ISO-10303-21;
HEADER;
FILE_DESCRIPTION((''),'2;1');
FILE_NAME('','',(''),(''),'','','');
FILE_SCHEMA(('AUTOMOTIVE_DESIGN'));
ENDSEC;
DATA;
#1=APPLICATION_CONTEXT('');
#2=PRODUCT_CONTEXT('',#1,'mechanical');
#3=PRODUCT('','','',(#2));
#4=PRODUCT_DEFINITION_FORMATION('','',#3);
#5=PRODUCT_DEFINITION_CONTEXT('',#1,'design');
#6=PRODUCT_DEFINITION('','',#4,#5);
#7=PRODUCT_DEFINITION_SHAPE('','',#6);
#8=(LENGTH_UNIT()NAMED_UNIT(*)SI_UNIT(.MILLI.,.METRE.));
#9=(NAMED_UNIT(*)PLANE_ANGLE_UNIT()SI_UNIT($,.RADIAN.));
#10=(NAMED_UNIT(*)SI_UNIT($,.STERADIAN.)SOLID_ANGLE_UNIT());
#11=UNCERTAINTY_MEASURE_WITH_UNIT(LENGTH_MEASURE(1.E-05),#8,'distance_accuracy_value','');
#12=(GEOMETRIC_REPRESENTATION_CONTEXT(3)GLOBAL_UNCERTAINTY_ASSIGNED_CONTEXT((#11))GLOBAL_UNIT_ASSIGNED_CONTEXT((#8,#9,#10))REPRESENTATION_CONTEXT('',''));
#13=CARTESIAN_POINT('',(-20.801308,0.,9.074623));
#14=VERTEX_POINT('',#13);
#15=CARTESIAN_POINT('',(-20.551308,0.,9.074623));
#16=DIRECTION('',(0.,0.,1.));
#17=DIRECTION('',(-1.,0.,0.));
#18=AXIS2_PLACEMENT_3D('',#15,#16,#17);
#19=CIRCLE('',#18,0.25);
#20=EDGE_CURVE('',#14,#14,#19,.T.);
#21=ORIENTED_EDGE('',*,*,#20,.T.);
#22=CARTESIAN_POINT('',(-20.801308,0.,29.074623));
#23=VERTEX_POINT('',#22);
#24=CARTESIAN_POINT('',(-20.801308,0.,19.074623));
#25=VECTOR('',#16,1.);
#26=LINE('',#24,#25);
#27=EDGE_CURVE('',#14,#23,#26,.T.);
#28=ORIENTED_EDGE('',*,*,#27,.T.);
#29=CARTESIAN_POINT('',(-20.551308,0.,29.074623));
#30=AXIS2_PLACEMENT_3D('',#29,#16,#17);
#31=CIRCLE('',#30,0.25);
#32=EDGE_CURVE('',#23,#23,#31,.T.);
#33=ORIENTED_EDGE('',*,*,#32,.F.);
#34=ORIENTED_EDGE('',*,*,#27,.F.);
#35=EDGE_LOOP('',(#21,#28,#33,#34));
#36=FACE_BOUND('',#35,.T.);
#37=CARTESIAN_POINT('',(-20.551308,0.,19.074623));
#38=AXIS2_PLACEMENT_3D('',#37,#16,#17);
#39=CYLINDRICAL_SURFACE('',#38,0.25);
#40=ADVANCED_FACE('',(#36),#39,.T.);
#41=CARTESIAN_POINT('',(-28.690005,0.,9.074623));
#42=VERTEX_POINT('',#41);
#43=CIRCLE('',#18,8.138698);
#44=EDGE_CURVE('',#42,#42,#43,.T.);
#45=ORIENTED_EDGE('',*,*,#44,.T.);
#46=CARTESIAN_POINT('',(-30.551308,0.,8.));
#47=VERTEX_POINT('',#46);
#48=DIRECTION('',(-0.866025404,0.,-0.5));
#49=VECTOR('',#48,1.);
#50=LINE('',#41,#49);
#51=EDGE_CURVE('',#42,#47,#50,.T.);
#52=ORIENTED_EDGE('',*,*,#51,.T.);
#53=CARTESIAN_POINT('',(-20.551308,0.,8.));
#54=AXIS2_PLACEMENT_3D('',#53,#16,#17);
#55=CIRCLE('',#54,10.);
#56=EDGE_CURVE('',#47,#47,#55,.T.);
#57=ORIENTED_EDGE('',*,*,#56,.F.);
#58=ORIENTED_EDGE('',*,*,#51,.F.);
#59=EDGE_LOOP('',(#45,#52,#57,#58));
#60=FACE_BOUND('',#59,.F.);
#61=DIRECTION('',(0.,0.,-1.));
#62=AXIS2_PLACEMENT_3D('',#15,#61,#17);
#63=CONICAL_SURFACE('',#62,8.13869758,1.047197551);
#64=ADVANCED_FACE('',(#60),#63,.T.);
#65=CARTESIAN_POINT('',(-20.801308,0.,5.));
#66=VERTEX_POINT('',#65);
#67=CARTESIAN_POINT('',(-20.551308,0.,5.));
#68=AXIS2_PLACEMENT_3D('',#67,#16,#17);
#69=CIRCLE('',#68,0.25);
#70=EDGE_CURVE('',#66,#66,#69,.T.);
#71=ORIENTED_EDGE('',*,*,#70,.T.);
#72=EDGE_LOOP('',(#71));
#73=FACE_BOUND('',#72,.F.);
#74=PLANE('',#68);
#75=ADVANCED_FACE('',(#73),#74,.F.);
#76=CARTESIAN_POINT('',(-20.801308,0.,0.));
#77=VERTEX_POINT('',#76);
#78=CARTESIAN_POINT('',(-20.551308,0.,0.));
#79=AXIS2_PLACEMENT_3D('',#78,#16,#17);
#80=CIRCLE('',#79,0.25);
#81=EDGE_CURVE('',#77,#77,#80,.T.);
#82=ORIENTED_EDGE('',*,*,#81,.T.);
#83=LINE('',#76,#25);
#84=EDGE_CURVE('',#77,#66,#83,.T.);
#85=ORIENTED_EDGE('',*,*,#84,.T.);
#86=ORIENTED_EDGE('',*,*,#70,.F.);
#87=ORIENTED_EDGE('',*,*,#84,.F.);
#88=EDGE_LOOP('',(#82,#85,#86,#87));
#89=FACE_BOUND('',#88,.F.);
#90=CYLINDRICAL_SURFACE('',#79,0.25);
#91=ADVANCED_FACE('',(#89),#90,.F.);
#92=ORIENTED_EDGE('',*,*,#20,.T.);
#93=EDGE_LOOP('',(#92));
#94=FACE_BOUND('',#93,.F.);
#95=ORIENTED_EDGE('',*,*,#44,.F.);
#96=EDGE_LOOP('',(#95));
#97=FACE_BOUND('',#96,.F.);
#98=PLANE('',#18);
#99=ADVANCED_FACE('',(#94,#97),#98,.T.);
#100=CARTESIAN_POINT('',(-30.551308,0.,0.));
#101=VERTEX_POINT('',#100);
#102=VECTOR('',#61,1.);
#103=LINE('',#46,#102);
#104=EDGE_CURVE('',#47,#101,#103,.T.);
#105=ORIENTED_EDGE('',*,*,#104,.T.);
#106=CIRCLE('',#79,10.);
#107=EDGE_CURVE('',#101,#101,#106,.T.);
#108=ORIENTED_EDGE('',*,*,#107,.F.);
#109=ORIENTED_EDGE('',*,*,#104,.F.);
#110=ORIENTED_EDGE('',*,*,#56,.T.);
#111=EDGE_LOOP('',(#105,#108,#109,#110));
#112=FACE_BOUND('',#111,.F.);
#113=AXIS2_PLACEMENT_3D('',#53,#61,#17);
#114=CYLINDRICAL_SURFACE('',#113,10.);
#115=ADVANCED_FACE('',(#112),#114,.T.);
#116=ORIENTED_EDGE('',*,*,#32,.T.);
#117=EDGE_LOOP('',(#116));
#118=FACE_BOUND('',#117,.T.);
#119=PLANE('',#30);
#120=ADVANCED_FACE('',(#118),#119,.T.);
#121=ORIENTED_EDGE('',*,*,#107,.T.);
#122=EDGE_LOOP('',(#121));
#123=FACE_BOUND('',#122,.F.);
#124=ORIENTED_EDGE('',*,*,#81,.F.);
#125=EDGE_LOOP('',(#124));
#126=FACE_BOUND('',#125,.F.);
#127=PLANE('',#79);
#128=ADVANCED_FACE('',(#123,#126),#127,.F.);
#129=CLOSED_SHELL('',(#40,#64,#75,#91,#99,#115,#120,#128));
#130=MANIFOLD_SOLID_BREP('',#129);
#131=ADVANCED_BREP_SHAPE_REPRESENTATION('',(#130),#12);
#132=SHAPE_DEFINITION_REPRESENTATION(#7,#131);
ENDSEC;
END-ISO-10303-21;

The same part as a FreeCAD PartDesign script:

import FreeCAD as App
import Part
import Sketcher

V = App.Vector
Q = App.Units.Quantity

doc = App.newDocument("Part")
body = doc.addObject("PartDesign::Body", "Body")

sketch1 = body.newObject("Sketcher::SketchObject", "Sketch")
sketch1.AttachmentSupport = (doc.getObject("XZ_Plane"), [""])
sketch1.MapMode = "FlatFace"
sketch1.addGeometry([
    Part.LineSegment(V(-20.801308, 29.074623, 0), V(-20.801308, 9.074623, 0)),
    Part.LineSegment(V(-20.801308, 9.074623, 0), V(-28.690005, 9.074623, 0)),
    Part.LineSegment(V(-28.690005, 9.074623, 0), V(-30.551308, 8, 0)),
    Part.LineSegment(V(-30.551308, 8, 0), V(-30.551308, 0, 0)),
    Part.LineSegment(V(-30.551308, 0, 0), V(-20.801308, 0, 0)),
    Part.LineSegment(V(-20.801308, 0, 0), V(-20.801308, 5, 0)),
    Part.LineSegment(V(-20.801308, 5, 0), V(-20.551308, 5, 0)),
    Part.LineSegment(V(-20.551308, 5, 0), V(-20.551308, 29.074623, 0)),
    Part.LineSegment(V(-20.551308, 29.074623, 0), V(-20.801308, 29.074623, 0)),
], False)
sketch1.addGeometry(Part.LineSegment(V(-20.551308, 0, 0), V(-20.551308, 29.074623, 0)), True)
sketch1.addConstraint([
    Sketcher.Constraint("Coincident", 0, 2, 1, 1),
    Sketcher.Constraint("Coincident", 1, 2, 2, 1),
    Sketcher.Constraint("Coincident", 2, 2, 3, 1),
    Sketcher.Constraint("Coincident", 3, 2, 4, 1),
    Sketcher.Constraint("Coincident", 4, 2, 5, 1),
    Sketcher.Constraint("Coincident", 5, 2, 6, 1),
    Sketcher.Constraint("Coincident", 6, 2, 7, 1),
    Sketcher.Constraint("Coincident", 7, 2, 8, 1),
    Sketcher.Constraint("Coincident", 8, 2, 0, 1),
    Sketcher.Constraint("Vertical", 0),
    Sketcher.Constraint("Horizontal", 1),
    Sketcher.Constraint("Vertical", 3),
    Sketcher.Constraint("Horizontal", 4),
    Sketcher.Constraint("Vertical", 5),
    Sketcher.Constraint("Horizontal", 6),
    Sketcher.Constraint("Vertical", 7),
    Sketcher.Constraint("Horizontal", 8),
    Sketcher.Constraint("Vertical", 9),
    Sketcher.Constraint("Coincident", 9, 2, 7, 2),
    Sketcher.Constraint("PointOnObject", 3, 2, -1),
    Sketcher.Constraint("PointOnObject", 9, 1, -1),
    Sketcher.Constraint("Vertical", 0, 2, 4, 2),
    Sketcher.Constraint("DistanceY", 0, 2, 0, 1, Q("20 mm")),
    Sketcher.Constraint("DistanceY", 3, 2, 3, 1, Q("8 mm")),
    Sketcher.Constraint("DistanceY", 5, 1, 5, 2, Q("5 mm")),
    Sketcher.Constraint("Angle", 2, Q("-150 deg")),
    Sketcher.Constraint("DistanceX", 2, 2, 6, 2, Q("10 mm")),
    Sketcher.Constraint("DistanceX", 4, 1, 4, 2, Q("9.75 mm")),
    Sketcher.Constraint("DistanceX", 1, 2, 1, 1, Q("7.888698 mm")),
    Sketcher.Constraint("DistanceX", 0, 2, -1, 1, Q("20.801308 mm")),
])
revolution = body.newObject("PartDesign::Revolution", "Revolution")
revolution.Profile = sketch1
revolution.ReferenceAxis = (sketch1, ["Axis0"])
revolution.Angle = 360

doc.recompute()
